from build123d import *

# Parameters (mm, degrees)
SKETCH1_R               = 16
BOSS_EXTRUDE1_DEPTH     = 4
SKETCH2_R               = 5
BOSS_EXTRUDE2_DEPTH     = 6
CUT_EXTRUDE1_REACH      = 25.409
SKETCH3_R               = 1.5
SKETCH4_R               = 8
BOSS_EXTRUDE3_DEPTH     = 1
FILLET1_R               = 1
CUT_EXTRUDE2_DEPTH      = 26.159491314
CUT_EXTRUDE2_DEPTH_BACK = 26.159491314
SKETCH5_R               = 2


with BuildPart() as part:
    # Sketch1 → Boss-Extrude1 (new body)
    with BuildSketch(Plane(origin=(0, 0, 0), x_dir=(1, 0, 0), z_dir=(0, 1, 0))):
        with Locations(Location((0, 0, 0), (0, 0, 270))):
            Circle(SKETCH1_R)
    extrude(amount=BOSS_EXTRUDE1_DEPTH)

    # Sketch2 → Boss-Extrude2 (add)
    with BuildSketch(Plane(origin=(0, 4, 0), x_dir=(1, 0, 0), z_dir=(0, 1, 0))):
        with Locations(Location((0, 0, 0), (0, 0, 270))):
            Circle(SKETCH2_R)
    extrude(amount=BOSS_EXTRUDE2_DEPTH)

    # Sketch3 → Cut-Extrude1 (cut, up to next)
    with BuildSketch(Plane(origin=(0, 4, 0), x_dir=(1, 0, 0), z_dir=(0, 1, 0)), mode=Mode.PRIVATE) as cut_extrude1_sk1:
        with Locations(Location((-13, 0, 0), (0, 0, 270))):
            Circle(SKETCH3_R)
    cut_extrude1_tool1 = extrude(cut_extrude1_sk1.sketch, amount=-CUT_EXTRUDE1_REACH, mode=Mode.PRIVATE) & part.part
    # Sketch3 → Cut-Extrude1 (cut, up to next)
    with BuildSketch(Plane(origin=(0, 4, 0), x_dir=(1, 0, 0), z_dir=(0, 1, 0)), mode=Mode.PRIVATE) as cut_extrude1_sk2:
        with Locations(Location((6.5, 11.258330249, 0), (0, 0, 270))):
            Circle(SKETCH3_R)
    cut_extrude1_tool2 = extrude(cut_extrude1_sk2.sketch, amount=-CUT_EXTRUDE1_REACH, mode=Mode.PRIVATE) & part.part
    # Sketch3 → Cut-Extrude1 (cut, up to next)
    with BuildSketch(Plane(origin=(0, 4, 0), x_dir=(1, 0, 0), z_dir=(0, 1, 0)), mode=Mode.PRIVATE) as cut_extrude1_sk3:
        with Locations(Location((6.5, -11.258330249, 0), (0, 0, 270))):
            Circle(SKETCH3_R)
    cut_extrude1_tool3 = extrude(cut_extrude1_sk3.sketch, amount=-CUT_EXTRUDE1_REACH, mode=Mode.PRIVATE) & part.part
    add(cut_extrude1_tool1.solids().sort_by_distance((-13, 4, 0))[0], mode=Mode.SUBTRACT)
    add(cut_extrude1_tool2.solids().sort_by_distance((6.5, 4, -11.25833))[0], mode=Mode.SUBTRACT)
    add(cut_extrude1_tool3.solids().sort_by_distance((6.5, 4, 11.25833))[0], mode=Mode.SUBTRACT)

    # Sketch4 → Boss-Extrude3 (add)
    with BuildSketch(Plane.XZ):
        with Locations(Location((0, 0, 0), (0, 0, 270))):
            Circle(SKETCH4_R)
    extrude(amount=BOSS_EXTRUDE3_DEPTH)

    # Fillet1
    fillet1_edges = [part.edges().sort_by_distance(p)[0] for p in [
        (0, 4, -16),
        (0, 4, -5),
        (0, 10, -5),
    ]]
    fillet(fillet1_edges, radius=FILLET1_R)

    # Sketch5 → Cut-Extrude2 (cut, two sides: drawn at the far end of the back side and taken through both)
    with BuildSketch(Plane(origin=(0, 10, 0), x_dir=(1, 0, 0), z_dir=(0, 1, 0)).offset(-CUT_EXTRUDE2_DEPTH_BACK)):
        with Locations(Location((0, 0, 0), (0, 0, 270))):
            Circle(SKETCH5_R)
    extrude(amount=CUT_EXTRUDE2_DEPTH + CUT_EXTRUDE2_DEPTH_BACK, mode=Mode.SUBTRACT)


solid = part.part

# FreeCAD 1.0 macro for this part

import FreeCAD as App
import Part
import Sketcher
Q = App.Units.Quantity


def edges_at(feature, points):
    """Names of the edges that pass closest to the given points."""
    edges = feature.Shape.Edges
    near = lambda p: min(range(len(edges)), key=lambda i: edges[i].distToShape(Part.Vertex(*p))[0])
    return sorted({f"Edge{near(p) + 1}" for p in points})

doc = App.newDocument("Part")
body = doc.addObject("PartDesign::Body", "Body")

# Sketch on XZ plane
sketch1 = body.newObject("Sketcher::SketchObject", "Sketch")
sketch1.AttachmentSupport = (doc.getObject("XZ_Plane"), [""])
sketch1.MapMode = "FlatFace"
sketch1.addGeometry(Part.Circle(App.Vector(0, 0, 0), App.Vector(0, 0, 1), 16), False)
sketch1.addConstraint([
    Sketcher.Constraint("Coincident", 0, 3, -1, 1),
    Sketcher.Constraint("Diameter", 0, Q("32 mm")),
])
pad1 = body.newObject("PartDesign::Pad", "Pad")
pad1.Profile = sketch1
pad1.Length = 4
pad1.Reversed = True

# Sketch on XZ plane
sketch2 = body.newObject("Sketcher::SketchObject", "Sketch001")
sketch2.AttachmentSupport = (doc.getObject("XZ_Plane"), [""])
sketch2.MapMode = "FlatFace"
sketch2.AttachmentOffset = App.Placement(App.Vector(0, 0, -4), App.Rotation())
sketch2.addGeometry(Part.Circle(App.Vector(0, 0, 0), App.Vector(0, 0, 1), 5), False)
sketch2.addConstraint([
    Sketcher.Constraint("Coincident", 0, 3, -1, 1),
    Sketcher.Constraint("Diameter", 0, Q("10 mm")),
])
pad2 = body.newObject("PartDesign::Pad", "Pad001")
pad2.Profile = sketch2
pad2.Length = 6
pad2.Reversed = True

# Sketch on XZ plane
sketch3 = body.newObject("Sketcher::SketchObject", "Sketch002")
sketch3.AttachmentSupport = (doc.getObject("XZ_Plane"), [""])
sketch3.MapMode = "FlatFace"
sketch3.AttachmentOffset = App.Placement(App.Vector(0, 0, -4), App.Rotation())
sketch3.addGeometry(Part.Circle(App.Vector(-13, 0, 0), App.Vector(0, 0, 1), 1.5), False)
sketch3.addConstraint([
    Sketcher.Constraint("PointOnObject", 0, 3, -1),
    Sketcher.Constraint("Diameter", 0, Q("3 mm")),
    Sketcher.Constraint("DistanceX", 0, 3, -1, 1, Q("13 mm")),
])
pocket1 = body.newObject("PartDesign::Pocket", "Pocket")
pocket1.Profile = sketch3
pocket1.Type = "UpToFirst"
pocket1.Reversed = True

# Sketch on XZ plane
sketch4 = body.newObject("Sketcher::SketchObject", "Sketch003")
sketch4.AttachmentSupport = (doc.getObject("XZ_Plane"), [""])
sketch4.MapMode = "FlatFace"
sketch4.AttachmentOffset = App.Placement(App.Vector(0, 0, -4), App.Rotation())
sketch4.addGeometry(Part.Circle(App.Vector(6.5, -11.3, 0), App.Vector(0, 0, 1), 1.5), False)
sketch4.addConstraint([
    Sketcher.Constraint("Diameter", 0, Q("3 mm")),
    Sketcher.Constraint("DistanceX", -1, 1, 0, 3, Q("6.5 mm")),
    Sketcher.Constraint("DistanceY", 0, 3, -1, 1, Q("11.25833 mm")),
])
pocket2 = body.newObject("PartDesign::Pocket", "Pocket001")
pocket2.Profile = sketch4
pocket2.Type = "UpToFirst"
pocket2.Reversed = True

# Sketch on XZ plane
sketch5 = body.newObject("Sketcher::SketchObject", "Sketch004")
sketch5.AttachmentSupport = (doc.getObject("XZ_Plane"), [""])
sketch5.MapMode = "FlatFace"
sketch5.AttachmentOffset = App.Placement(App.Vector(0, 0, -4), App.Rotation())
sketch5.addGeometry(Part.Circle(App.Vector(6.5, 11.3, 0), App.Vector(0, 0, 1), 1.5), False)
sketch5.addConstraint([
    Sketcher.Constraint("Diameter", 0, Q("3 mm")),
    Sketcher.Constraint("DistanceX", -1, 1, 0, 3, Q("6.5 mm")),
    Sketcher.Constraint("DistanceY", -1, 1, 0, 3, Q("11.25833 mm")),
])
pocket3 = body.newObject("PartDesign::Pocket", "Pocket002")
pocket3.Profile = sketch5
pocket3.Type = "UpToFirst"
pocket3.Reversed = True

# Sketch on XZ plane
sketch6 = body.newObject("Sketcher::SketchObject", "Sketch005")
sketch6.AttachmentSupport = (doc.getObject("XZ_Plane"), [""])
sketch6.MapMode = "FlatFace"
sketch6.addGeometry(Part.Circle(App.Vector(0, 0, 0), App.Vector(0, 0, 1), 8), False)
sketch6.addConstraint([
    Sketcher.Constraint("Coincident", 0, 3, -1, 1),
    Sketcher.Constraint("Diameter", 0, Q("16 mm")),
])
pad3 = body.newObject("PartDesign::Pad", "Pad002")
pad3.Profile = sketch6
pad3.Length = 1
doc.recompute()

fillet = body.newObject("PartDesign::Fillet", "Fillet")
fillet.Base = (pad3, edges_at(pad3, [(0, 4, -16), (0, 4, -5), (0, 10, -5)]))
fillet.Radius = 1

# Sketch on XZ plane
sketch7 = body.newObject("Sketcher::SketchObject", "Sketch006")
sketch7.AttachmentSupport = (doc.getObject("XZ_Plane"), [""])
sketch7.MapMode = "FlatFace"
sketch7.AttachmentOffset = App.Placement(App.Vector(0, 0, -10), App.Rotation())
sketch7.addGeometry(Part.Circle(App.Vector(0, 0, 0), App.Vector(0, 0, 1), 2), False)
sketch7.addConstraint([
    Sketcher.Constraint("Coincident", 0, 3, -1, 1),
    Sketcher.Constraint("Diameter", 0, Q("4 mm")),
])
pocket4 = body.newObject("PartDesign::Pocket", "Pocket003")
pocket4.Profile = sketch7
pocket4.Type = "ThroughAll"
pocket4.Midplane = True

doc.recompute()
